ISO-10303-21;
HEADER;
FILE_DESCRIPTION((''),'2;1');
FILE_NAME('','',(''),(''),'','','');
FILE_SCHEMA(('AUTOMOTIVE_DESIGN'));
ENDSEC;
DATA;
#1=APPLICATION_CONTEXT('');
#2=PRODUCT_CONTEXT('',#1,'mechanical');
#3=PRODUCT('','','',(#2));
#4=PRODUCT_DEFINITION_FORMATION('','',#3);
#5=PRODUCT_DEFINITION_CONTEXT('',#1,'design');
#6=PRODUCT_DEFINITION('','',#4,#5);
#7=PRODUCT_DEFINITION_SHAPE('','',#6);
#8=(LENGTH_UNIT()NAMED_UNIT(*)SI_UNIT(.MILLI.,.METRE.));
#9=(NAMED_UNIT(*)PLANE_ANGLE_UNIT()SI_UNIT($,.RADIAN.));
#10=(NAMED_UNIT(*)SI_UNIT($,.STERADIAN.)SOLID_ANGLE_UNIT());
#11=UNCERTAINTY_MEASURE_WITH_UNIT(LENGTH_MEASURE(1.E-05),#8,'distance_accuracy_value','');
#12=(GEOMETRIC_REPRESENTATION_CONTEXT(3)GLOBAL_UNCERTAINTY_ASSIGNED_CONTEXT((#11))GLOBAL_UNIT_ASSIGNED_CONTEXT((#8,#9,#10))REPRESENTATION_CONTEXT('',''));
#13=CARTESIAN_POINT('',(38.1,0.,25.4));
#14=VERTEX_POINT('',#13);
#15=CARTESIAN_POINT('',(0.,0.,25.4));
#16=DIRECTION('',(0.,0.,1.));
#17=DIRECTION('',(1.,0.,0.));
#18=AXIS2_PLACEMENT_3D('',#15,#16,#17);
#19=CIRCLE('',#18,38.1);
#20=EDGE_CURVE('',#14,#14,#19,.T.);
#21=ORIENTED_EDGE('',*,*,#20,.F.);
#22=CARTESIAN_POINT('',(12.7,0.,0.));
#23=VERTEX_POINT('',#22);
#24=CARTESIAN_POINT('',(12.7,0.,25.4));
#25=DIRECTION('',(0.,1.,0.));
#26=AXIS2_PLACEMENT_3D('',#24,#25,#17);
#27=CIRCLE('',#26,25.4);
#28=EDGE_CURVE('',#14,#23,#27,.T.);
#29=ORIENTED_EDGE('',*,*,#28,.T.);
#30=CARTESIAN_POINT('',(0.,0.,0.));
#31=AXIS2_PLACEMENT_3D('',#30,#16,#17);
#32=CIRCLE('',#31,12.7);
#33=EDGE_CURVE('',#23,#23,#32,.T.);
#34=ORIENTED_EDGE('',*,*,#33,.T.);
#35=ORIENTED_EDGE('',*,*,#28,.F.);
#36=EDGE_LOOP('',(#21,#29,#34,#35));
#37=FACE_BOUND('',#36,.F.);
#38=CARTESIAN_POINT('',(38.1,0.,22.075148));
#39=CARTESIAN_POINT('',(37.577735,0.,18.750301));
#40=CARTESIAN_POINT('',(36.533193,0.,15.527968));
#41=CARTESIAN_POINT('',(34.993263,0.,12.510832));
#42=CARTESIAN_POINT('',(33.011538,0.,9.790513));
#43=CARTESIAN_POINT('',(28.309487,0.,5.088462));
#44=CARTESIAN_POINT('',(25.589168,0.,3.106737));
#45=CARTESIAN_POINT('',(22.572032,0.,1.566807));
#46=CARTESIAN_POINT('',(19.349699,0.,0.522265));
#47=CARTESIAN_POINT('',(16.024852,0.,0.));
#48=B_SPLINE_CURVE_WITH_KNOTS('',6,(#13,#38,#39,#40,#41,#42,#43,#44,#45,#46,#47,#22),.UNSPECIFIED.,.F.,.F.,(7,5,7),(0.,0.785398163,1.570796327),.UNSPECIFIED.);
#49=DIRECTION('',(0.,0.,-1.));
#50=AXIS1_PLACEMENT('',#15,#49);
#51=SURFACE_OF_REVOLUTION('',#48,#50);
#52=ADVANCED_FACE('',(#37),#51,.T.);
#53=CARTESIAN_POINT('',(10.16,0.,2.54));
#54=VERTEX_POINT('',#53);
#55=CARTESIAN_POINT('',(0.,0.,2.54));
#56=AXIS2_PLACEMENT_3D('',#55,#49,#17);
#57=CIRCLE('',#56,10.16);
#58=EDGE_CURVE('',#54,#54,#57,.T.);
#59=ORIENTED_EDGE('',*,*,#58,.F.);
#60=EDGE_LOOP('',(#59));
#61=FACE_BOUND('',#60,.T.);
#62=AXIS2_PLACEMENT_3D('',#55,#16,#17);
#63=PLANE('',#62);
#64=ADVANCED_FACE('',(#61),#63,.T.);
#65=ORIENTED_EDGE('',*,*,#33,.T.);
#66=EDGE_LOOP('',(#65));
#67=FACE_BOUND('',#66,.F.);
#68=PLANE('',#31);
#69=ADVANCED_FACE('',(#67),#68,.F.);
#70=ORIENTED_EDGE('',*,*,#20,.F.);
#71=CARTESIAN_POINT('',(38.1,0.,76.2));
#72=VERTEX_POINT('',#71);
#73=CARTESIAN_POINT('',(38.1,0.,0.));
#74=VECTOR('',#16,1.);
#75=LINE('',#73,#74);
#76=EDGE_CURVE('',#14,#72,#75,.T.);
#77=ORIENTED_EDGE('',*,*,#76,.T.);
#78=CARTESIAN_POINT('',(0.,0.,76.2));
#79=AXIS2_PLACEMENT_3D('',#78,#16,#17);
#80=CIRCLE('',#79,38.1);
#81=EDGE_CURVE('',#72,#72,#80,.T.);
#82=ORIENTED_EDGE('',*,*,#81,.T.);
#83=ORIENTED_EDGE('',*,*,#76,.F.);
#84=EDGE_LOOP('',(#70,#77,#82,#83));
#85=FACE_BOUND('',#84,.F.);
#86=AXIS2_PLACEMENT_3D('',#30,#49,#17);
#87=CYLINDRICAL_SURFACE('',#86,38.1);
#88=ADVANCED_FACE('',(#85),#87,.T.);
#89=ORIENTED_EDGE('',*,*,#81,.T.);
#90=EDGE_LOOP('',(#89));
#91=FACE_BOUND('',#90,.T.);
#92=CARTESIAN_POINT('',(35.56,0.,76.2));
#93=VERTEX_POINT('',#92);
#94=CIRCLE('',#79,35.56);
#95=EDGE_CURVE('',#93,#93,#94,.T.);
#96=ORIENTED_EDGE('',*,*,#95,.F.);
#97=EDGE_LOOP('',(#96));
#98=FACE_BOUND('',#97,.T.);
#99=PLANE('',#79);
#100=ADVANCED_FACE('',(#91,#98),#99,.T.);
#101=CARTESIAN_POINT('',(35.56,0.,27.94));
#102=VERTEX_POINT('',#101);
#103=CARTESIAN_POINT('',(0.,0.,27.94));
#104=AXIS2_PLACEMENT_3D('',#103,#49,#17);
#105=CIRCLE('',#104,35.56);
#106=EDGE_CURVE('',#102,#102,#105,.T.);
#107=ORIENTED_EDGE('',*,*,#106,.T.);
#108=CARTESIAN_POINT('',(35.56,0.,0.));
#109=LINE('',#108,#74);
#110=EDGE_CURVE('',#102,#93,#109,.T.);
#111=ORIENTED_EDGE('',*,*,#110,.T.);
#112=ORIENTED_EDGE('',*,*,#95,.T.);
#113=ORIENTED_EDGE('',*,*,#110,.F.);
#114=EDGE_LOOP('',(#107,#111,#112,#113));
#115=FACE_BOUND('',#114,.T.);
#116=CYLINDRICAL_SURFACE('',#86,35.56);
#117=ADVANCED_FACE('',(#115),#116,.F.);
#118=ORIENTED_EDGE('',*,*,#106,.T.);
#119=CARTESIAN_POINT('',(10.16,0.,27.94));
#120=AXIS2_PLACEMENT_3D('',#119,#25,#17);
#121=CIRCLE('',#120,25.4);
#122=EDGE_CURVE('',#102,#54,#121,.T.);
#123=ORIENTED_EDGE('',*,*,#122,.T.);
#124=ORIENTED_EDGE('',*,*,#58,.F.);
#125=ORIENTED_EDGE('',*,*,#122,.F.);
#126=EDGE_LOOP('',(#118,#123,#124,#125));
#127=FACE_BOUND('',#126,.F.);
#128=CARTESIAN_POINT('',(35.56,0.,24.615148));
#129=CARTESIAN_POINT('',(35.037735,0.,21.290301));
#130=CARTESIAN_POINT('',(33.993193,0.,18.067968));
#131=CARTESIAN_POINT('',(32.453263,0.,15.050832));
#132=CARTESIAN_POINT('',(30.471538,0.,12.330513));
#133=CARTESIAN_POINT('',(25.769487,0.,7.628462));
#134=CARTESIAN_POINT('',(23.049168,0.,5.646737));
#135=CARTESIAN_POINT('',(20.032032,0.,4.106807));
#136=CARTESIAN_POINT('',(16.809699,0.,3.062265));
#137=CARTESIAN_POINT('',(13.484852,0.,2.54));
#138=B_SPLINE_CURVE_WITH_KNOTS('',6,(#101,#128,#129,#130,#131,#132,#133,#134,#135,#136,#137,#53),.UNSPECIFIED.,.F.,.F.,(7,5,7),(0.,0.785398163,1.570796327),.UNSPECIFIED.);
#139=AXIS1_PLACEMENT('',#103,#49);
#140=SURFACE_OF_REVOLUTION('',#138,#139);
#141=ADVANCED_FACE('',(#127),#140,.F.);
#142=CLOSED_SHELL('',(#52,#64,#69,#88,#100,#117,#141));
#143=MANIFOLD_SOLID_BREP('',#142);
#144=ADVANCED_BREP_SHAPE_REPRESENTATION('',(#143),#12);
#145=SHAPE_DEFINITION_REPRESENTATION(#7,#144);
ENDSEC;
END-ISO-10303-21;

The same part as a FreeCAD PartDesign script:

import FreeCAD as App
import Part
import Sketcher
Q = App.Units.Quantity


def edges_at(feature, points):
    """Names of the edges that pass closest to the given points."""
    edges = feature.Shape.Edges
    near = lambda p: min(range(len(edges)), key=lambda i: edges[i].distToShape(Part.Vertex(*p))[0])
    return sorted({f"Edge{near(p) + 1}" for p in points})


def faces_at(feature, points):
    """Names of the faces that lie closest to the given points."""
    faces = feature.Shape.Faces
    near = lambda p: min(range(len(faces)), key=lambda i: faces[i].distToShape(Part.Vertex(*p))[0])
    return sorted({f"Face{near(p) + 1}" for p in points})

doc = App.newDocument("Part")
body = doc.addObject("PartDesign::Body", "Body")

sketch1 = body.newObject("Sketcher::SketchObject", "Sketch")
sketch1.AttachmentSupport = (doc.getObject("XY_Plane"), [""])
sketch1.MapMode = "FlatFace"
sketch1.addGeometry(Part.Circle(App.Vector(0, 0, 0), App.Vector(0, 0, 1), 42), False)
sketch1.addConstraint(Sketcher.Constraint("Coincident", 0, 3, -1, 1))
sketch1.addConstraint(Sketcher.Constraint("Diameter", 0, Q("84.120058 mm")))
pad1 = body.newObject("PartDesign::Pad", "Pad")
pad1.Profile = sketch1
pad1.Length = Q("3 in")
doc.recompute()

thickness = body.newObject("PartDesign::Thickness", "Thickness")
thickness.Base = (pad1, faces_at(pad1, [(0, 0, 76.2)]))
thickness.Value = Q("0.1 in")
thickness.Reversed = True
thickness.Join = "Arc"
doc.recompute()

fillet = body.newObject("PartDesign::Fillet", "Fillet")
fillet.Base = (thickness, edges_at(thickness, [(-39.52, 0, 2.54), (-42.06, 0, 0)]))
fillet.Radius = Q("1 in")
body2 = doc.addObject("PartDesign::Body", "Body001")

sketch2 = body2.newObject("Sketcher::SketchObject", "Sketch001")
sketch2.AttachmentSupport = (doc.getObject("XY_Plane001"), [""])
sketch2.MapMode = "FlatFace"
sketch2.AttachmentOffset = App.Placement(App.Vector(0, 0, 3 * 25.4), App.Rotation())
sketch2.addGeometry(Part.Circle(App.Vector(0, 0, 0), App.Vector(0, 0, 1), 40), False)
sketch2.addConstraint(Sketcher.Constraint("Coincident", 0, 3, -1, 1))
sketch2.addConstraint(Sketcher.Constraint("Diameter", 0, Q("79.040058 mm")))
pad2 = body2.newObject("PartDesign::Pad", "Pad001")
pad2.Profile = sketch2
pad2.Length = Q("1 in")
body3 = doc.addObject("PartDesign::Body", "Body002")

sketch3 = body3.newObject("Sketcher::SketchObject", "Sketch002")
sketch3.AttachmentSupport = (doc.getObject("XY_Plane002"), [""])
sketch3.MapMode = "FlatFace"
sketch3.addGeometry(Part.Circle(App.Vector(0, 0, 0), App.Vector(0, 0, 1), 38), False)
sketch3.addConstraint(Sketcher.Constraint("Coincident", 0, 3, -1, 1))
sketch3.addConstraint(Sketcher.Constraint("Diameter", 0, Q("3 in")))
pad3 = body3.newObject("PartDesign::Pad", "Pad002")
pad3.Profile = sketch3
pad3.Length = Q("3 in")
doc.recompute()

thickness2 = body3.newObject("PartDesign::Thickness", "Thickness001")
thickness2.Base = (pad3, faces_at(pad3, [(0, 0, 76.2)]))
thickness2.Value = Q("0.1 in")
thickness2.Reversed = True
thickness2.Join = "Arc"
doc.recompute()

fillet2 = body3.newObject("PartDesign::Fillet", "Fillet001")
fillet2.Base = (thickness2, edges_at(thickness2, [(-35.56, 0, 2.54), (-38.1, 0, 0)]))
fillet2.Radius = Q("1 in")
body.Visibility = False
body2.Visibility = False

doc.recompute()
